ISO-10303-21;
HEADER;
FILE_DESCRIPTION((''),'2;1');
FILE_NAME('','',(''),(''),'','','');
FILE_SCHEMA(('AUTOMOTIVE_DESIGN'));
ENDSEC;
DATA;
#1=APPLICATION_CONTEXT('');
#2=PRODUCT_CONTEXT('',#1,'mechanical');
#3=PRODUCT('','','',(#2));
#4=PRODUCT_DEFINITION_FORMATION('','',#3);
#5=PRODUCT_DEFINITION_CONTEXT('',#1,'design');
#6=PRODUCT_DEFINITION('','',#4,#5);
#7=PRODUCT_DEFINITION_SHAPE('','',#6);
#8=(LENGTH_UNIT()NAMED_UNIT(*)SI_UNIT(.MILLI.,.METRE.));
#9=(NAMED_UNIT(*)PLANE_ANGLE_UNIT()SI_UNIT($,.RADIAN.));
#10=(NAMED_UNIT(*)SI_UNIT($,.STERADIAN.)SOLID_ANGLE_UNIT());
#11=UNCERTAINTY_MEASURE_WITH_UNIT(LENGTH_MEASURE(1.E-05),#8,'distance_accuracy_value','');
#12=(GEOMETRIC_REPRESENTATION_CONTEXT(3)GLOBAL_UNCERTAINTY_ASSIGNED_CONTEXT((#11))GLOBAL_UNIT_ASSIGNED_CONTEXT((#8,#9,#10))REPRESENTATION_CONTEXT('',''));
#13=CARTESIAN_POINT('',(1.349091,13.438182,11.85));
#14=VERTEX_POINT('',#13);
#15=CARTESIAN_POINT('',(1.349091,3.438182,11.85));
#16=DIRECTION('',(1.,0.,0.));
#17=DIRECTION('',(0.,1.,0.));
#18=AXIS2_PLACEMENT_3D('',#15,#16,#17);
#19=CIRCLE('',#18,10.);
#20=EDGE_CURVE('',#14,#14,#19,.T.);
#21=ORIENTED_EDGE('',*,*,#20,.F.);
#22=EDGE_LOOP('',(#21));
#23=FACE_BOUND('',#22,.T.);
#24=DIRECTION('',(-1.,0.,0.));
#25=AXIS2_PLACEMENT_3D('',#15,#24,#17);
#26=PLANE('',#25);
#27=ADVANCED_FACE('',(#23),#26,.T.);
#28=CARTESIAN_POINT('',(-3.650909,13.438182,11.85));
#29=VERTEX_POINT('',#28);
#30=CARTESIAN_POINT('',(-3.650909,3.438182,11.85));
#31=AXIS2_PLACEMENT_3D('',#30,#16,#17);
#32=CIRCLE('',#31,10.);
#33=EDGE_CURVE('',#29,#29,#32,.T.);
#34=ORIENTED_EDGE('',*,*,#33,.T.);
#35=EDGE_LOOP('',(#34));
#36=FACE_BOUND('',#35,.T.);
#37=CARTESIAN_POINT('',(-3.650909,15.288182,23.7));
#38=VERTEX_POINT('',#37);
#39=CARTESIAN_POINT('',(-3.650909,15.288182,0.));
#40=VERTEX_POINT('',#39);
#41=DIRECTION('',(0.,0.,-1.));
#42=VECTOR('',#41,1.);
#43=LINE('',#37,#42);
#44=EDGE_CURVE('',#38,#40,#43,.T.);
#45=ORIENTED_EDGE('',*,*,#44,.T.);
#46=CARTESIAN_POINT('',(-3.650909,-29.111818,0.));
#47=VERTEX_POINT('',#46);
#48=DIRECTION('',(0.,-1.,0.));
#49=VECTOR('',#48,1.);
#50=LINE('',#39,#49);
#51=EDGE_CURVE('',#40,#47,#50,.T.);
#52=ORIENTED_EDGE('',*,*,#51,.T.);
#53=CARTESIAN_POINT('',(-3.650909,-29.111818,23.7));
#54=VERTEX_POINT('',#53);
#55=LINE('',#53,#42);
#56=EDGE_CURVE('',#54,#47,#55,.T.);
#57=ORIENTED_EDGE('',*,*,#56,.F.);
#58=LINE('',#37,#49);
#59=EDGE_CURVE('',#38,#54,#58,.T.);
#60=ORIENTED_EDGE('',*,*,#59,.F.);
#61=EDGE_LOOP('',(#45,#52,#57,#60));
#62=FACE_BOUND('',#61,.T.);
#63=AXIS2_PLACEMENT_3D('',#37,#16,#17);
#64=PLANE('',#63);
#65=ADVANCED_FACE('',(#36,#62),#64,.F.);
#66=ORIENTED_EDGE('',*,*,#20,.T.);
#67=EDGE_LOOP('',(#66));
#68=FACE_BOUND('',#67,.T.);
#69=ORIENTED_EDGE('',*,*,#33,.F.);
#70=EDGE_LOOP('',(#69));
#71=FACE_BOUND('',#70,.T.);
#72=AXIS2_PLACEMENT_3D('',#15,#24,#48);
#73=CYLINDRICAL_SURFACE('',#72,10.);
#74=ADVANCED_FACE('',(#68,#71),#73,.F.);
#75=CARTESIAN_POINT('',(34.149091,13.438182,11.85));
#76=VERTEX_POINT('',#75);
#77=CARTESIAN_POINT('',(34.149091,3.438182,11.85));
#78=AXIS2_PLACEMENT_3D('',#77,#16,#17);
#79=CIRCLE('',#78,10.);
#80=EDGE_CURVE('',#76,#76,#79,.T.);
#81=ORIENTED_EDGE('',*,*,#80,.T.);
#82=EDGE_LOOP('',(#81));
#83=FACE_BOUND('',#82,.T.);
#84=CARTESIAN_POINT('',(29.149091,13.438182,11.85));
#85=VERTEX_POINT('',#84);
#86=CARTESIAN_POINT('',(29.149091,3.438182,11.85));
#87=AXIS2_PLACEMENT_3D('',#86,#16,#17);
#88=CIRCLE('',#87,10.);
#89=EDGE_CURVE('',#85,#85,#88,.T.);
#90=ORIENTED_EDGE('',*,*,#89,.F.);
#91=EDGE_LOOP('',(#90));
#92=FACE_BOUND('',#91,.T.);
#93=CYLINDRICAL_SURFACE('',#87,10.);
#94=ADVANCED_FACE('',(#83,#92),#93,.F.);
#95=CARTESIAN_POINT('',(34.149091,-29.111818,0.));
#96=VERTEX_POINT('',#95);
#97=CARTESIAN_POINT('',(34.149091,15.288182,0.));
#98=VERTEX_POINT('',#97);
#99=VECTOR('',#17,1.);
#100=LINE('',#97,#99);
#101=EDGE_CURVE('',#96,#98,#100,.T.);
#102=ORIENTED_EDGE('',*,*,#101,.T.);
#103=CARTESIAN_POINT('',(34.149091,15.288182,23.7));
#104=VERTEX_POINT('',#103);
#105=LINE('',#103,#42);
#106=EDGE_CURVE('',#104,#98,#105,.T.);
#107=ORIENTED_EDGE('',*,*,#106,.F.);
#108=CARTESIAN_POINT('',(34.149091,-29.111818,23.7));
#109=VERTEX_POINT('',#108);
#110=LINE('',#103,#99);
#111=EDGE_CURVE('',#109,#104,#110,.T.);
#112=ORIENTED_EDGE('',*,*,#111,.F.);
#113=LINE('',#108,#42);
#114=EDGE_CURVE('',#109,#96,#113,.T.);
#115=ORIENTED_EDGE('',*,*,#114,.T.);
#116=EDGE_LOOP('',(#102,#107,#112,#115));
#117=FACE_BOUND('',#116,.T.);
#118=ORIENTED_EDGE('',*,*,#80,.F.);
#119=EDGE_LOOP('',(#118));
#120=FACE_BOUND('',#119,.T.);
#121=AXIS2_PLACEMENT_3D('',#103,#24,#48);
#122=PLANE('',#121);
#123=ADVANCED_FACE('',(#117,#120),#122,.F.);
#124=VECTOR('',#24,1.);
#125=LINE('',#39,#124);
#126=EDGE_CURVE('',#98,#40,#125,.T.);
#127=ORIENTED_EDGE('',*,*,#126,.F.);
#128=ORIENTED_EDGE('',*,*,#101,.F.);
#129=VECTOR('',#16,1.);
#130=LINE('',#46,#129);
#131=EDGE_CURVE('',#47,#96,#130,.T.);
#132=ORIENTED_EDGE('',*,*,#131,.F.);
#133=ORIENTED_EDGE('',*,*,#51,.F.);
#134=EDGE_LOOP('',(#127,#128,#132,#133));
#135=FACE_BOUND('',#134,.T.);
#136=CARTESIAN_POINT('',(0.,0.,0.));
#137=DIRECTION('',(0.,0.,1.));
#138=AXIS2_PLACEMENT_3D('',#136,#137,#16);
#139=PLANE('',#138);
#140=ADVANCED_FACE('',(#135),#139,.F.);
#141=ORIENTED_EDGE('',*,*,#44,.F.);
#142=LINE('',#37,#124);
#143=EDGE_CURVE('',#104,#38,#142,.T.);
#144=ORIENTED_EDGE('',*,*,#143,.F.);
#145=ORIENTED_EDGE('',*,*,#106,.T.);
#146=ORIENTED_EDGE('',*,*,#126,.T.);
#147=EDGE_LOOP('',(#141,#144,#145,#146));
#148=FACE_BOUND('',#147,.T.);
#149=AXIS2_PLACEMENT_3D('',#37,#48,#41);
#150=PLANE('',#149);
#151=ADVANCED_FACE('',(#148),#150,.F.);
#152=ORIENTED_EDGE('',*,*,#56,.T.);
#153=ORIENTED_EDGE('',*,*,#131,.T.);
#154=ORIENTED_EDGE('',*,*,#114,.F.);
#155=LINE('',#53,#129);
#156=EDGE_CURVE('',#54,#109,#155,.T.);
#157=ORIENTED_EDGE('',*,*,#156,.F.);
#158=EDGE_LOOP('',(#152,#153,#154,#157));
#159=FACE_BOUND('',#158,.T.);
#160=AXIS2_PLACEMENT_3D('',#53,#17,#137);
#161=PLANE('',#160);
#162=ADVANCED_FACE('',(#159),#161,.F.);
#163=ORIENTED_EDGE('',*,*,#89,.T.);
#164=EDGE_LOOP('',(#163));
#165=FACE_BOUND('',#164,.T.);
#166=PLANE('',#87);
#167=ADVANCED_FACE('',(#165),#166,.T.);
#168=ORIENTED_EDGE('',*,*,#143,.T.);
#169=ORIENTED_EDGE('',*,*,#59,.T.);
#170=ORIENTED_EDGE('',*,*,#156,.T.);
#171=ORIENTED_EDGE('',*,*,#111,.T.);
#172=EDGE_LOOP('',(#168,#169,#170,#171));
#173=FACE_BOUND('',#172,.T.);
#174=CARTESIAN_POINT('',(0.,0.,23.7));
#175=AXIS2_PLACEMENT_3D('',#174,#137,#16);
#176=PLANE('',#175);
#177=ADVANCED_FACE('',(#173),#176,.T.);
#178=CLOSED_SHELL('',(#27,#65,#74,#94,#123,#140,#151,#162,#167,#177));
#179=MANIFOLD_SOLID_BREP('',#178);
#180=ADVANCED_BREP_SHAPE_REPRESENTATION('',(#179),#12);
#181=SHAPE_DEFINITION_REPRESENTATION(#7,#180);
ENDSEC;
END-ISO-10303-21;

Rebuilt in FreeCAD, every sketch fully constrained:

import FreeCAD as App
import Part
import Sketcher

V = App.Vector
Q = App.Units.Quantity

doc = App.newDocument("Part")
body = doc.addObject("PartDesign::Body", "Body")

# Sketch on XY plane
sketch1 = body.newObject("Sketcher::SketchObject", "Sketch")
sketch1.AttachmentSupport = (doc.getObject("XY_Plane"), [""])
sketch1.MapMode = "FlatFace"
sketch1.addGeometry([
    Part.LineSegment(V(-4, 15, 0), V(-4, -29, 0)),
    Part.LineSegment(V(-4, -29, 0), V(34, -29, 0)),
    Part.LineSegment(V(34, -29, 0), V(34, 15, 0)),
    Part.LineSegment(V(34, 15, 0), V(-4, 15, 0)),
], False)
sketch1.addConstraint([
    Sketcher.Constraint("Coincident", 0, 2, 1, 1),
    Sketcher.Constraint("Coincident", 1, 2, 2, 1),
    Sketcher.Constraint("Coincident", 2, 2, 3, 1),
    Sketcher.Constraint("Coincident", 3, 2, 0, 1),
    Sketcher.Constraint("Vertical", 0),
    Sketcher.Constraint("Horizontal", 1),
    Sketcher.Constraint("Vertical", 2),
    Sketcher.Constraint("Horizontal", 3),
    Sketcher.Constraint("DistanceX", 1, 1, 1, 2, Q("37.8 mm")),
    Sketcher.Constraint("DistanceY", 0, 2, 0, 1, Q("44.4 mm")),
    Sketcher.Constraint("DistanceX", 0, 2, -1, 1, Q("3.650909 mm")),
    Sketcher.Constraint("DistanceY", 0, 2, -1, 1, Q("29.111818 mm")),
])
pad1 = body.newObject("PartDesign::Pad", "Pad")
pad1.Profile = sketch1
pad1.Length = 23.7

# Sketch on YZ plane
sketch2 = body.newObject("Sketcher::SketchObject", "Sketch001")
sketch2.AttachmentSupport = (doc.getObject("YZ_Plane"), [""])
sketch2.MapMode = "FlatFace"
sketch2.AttachmentOffset = App.Placement(V(0, 0, 34.149091), App.Rotation())
sketch2.addGeometry(Part.Circle(V(3, 12, 0), V(0, 0, 1), 10), False)
sketch2.addConstraint([
    Sketcher.Constraint("Diameter", 0, Q("20 mm")),
    Sketcher.Constraint("DistanceY", -1, 1, 0, 3, Q("11.85 mm")),
    Sketcher.Constraint("DistanceX", -1, 1, 0, 3, Q("3.438182 mm")),
])
pocket1 = body.newObject("PartDesign::Pocket", "Pocket")
pocket1.Profile = sketch2
pocket1.Length = 5
doc.recompute()

datumplane = body.newObject("PartDesign::Plane", "DatumPlane")
datumplane.AttachmentSupport = (doc.getObject("YZ_Plane"), [""])
datumplane.MapMode = "FlatFace"
datumplane.AttachmentOffset = App.Placement(V(0, 0, 15.249091), App.Rotation())
mirrored = body.newObject("PartDesign::Mirrored", "Mirrored")
mirrored.Originals = [pocket1]
mirrored.MirrorPlane = (datumplane, [""])
body.Tip = mirrored

doc.recompute()
